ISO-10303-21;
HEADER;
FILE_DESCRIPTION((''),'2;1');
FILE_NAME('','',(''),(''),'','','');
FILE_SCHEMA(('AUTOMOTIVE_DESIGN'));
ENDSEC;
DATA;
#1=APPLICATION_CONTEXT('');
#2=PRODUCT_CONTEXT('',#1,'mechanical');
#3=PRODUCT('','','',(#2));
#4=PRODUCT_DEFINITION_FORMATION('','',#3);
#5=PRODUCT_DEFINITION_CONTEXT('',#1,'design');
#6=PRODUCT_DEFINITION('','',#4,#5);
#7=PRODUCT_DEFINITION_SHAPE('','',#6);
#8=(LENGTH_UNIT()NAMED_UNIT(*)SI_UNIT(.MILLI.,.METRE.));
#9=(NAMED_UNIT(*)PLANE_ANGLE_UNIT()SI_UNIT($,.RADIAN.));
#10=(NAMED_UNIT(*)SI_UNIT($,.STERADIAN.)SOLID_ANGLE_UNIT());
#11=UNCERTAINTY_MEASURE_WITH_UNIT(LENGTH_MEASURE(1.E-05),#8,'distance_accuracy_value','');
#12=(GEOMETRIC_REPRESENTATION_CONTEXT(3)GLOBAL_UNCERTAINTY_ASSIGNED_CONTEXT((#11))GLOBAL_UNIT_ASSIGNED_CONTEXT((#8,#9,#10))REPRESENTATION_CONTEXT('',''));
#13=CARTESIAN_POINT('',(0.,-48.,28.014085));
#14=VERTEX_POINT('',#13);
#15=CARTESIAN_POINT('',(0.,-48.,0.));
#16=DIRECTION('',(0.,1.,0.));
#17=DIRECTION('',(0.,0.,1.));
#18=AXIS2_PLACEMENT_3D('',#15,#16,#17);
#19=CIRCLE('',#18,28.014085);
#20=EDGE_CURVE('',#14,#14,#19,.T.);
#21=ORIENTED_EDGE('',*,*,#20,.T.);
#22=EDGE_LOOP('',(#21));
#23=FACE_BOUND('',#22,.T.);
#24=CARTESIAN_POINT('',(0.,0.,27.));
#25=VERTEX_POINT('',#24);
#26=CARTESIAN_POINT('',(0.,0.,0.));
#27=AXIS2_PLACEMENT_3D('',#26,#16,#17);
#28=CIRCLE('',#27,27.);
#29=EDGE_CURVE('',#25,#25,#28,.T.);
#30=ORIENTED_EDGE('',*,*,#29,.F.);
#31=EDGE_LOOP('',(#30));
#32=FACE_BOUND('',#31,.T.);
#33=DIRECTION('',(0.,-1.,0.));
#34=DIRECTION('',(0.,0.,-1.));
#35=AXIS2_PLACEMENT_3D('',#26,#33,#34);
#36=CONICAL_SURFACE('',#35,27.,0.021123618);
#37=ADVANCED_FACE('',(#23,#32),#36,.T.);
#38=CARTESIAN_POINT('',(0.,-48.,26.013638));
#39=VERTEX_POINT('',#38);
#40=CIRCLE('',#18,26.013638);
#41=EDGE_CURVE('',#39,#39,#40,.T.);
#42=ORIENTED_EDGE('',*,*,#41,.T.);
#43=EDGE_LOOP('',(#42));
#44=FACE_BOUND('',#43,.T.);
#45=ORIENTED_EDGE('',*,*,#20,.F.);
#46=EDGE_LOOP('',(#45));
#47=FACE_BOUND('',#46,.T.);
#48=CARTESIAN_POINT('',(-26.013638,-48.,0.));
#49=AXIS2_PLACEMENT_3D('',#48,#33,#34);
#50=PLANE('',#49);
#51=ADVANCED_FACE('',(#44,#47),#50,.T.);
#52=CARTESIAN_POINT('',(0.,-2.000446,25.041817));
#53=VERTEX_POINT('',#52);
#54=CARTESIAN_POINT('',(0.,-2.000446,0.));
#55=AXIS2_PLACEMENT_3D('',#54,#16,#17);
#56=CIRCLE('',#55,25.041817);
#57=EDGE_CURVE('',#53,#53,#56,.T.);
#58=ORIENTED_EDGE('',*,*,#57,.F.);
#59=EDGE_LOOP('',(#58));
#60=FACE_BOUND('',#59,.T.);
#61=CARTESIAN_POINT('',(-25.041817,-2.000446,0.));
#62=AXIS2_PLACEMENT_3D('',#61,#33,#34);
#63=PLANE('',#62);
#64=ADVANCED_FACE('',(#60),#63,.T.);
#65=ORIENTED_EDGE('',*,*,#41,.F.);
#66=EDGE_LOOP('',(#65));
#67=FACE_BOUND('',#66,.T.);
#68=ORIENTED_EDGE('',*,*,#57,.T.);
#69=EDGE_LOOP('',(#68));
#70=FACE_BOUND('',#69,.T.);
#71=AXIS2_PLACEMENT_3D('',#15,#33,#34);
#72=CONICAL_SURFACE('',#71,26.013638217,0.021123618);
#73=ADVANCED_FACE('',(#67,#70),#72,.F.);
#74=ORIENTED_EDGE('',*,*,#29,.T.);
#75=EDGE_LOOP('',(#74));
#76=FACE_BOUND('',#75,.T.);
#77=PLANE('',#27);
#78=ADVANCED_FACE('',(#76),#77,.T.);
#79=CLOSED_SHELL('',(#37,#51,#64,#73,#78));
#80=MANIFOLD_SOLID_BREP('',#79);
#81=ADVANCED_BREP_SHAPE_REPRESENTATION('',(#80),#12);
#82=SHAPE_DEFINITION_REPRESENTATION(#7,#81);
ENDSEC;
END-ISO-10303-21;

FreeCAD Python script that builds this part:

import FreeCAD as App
import Part
import Sketcher


def add_polygon(sketch, points):
    """Adds a closed chain of lines whose ends are joined by coincident constraints."""
    first, n = sketch.GeometryCount, len(points)
    for a, b in zip(points, points[1:] + points[:1]):
        sketch.addGeometry(Part.LineSegment(App.Vector(*a, 0), App.Vector(*b, 0)), False)
    for i in range(n):
        sketch.addConstraint(Sketcher.Constraint("Coincident", first + i, 2, first + (i + 1) % n, 1))

doc = App.newDocument("Part")
body = doc.addObject("PartDesign::Body", "Body")

sketch1 = body.newObject("Sketcher::SketchObject", "Sketch")
sketch1.AttachmentSupport = (doc.getObject("XY_Plane"), [""])
sketch1.MapMode = "FlatFace"
add_polygon(sketch1, [(0, 0), (-27, 0), (-28, -48), (-26, -48), (-25, -2), (0, -2)])
sketch1.addConstraint(Sketcher.Constraint("Horizontal", 0))
sketch1.addConstraint(Sketcher.Constraint("Horizontal", 2))
sketch1.addConstraint(Sketcher.Constraint("Horizontal", 4))
sketch1.addConstraint(Sketcher.Constraint("Vertical", 5))
sketch1.addConstraint(Sketcher.Constraint("Coincident", 5, 2, -1, 1))
sketch1.addConstraint(Sketcher.Constraint("Parallel", 1, 3))
sketch1.addConstraint(Sketcher.Constraint("Equal", 2, 5))
sketch1.addConstraint(Sketcher.Constraint("DistanceX", 0, 2, 0, 1, 27.0))
sketch1.addConstraint(Sketcher.Constraint("DistanceY", 1, 2, -1, 1, 48.0))
sketch1.addConstraint(Sketcher.Constraint("Distance", 1, 48.010711))
sketch1.addConstraint(Sketcher.Constraint("Distance", 3, 46.009818))
revolution = body.newObject("PartDesign::Revolution", "Revolution")
revolution.Profile = sketch1
revolution.ReferenceAxis = (sketch1, ["V_Axis"])
revolution.Angle = 360

doc.recompute()
